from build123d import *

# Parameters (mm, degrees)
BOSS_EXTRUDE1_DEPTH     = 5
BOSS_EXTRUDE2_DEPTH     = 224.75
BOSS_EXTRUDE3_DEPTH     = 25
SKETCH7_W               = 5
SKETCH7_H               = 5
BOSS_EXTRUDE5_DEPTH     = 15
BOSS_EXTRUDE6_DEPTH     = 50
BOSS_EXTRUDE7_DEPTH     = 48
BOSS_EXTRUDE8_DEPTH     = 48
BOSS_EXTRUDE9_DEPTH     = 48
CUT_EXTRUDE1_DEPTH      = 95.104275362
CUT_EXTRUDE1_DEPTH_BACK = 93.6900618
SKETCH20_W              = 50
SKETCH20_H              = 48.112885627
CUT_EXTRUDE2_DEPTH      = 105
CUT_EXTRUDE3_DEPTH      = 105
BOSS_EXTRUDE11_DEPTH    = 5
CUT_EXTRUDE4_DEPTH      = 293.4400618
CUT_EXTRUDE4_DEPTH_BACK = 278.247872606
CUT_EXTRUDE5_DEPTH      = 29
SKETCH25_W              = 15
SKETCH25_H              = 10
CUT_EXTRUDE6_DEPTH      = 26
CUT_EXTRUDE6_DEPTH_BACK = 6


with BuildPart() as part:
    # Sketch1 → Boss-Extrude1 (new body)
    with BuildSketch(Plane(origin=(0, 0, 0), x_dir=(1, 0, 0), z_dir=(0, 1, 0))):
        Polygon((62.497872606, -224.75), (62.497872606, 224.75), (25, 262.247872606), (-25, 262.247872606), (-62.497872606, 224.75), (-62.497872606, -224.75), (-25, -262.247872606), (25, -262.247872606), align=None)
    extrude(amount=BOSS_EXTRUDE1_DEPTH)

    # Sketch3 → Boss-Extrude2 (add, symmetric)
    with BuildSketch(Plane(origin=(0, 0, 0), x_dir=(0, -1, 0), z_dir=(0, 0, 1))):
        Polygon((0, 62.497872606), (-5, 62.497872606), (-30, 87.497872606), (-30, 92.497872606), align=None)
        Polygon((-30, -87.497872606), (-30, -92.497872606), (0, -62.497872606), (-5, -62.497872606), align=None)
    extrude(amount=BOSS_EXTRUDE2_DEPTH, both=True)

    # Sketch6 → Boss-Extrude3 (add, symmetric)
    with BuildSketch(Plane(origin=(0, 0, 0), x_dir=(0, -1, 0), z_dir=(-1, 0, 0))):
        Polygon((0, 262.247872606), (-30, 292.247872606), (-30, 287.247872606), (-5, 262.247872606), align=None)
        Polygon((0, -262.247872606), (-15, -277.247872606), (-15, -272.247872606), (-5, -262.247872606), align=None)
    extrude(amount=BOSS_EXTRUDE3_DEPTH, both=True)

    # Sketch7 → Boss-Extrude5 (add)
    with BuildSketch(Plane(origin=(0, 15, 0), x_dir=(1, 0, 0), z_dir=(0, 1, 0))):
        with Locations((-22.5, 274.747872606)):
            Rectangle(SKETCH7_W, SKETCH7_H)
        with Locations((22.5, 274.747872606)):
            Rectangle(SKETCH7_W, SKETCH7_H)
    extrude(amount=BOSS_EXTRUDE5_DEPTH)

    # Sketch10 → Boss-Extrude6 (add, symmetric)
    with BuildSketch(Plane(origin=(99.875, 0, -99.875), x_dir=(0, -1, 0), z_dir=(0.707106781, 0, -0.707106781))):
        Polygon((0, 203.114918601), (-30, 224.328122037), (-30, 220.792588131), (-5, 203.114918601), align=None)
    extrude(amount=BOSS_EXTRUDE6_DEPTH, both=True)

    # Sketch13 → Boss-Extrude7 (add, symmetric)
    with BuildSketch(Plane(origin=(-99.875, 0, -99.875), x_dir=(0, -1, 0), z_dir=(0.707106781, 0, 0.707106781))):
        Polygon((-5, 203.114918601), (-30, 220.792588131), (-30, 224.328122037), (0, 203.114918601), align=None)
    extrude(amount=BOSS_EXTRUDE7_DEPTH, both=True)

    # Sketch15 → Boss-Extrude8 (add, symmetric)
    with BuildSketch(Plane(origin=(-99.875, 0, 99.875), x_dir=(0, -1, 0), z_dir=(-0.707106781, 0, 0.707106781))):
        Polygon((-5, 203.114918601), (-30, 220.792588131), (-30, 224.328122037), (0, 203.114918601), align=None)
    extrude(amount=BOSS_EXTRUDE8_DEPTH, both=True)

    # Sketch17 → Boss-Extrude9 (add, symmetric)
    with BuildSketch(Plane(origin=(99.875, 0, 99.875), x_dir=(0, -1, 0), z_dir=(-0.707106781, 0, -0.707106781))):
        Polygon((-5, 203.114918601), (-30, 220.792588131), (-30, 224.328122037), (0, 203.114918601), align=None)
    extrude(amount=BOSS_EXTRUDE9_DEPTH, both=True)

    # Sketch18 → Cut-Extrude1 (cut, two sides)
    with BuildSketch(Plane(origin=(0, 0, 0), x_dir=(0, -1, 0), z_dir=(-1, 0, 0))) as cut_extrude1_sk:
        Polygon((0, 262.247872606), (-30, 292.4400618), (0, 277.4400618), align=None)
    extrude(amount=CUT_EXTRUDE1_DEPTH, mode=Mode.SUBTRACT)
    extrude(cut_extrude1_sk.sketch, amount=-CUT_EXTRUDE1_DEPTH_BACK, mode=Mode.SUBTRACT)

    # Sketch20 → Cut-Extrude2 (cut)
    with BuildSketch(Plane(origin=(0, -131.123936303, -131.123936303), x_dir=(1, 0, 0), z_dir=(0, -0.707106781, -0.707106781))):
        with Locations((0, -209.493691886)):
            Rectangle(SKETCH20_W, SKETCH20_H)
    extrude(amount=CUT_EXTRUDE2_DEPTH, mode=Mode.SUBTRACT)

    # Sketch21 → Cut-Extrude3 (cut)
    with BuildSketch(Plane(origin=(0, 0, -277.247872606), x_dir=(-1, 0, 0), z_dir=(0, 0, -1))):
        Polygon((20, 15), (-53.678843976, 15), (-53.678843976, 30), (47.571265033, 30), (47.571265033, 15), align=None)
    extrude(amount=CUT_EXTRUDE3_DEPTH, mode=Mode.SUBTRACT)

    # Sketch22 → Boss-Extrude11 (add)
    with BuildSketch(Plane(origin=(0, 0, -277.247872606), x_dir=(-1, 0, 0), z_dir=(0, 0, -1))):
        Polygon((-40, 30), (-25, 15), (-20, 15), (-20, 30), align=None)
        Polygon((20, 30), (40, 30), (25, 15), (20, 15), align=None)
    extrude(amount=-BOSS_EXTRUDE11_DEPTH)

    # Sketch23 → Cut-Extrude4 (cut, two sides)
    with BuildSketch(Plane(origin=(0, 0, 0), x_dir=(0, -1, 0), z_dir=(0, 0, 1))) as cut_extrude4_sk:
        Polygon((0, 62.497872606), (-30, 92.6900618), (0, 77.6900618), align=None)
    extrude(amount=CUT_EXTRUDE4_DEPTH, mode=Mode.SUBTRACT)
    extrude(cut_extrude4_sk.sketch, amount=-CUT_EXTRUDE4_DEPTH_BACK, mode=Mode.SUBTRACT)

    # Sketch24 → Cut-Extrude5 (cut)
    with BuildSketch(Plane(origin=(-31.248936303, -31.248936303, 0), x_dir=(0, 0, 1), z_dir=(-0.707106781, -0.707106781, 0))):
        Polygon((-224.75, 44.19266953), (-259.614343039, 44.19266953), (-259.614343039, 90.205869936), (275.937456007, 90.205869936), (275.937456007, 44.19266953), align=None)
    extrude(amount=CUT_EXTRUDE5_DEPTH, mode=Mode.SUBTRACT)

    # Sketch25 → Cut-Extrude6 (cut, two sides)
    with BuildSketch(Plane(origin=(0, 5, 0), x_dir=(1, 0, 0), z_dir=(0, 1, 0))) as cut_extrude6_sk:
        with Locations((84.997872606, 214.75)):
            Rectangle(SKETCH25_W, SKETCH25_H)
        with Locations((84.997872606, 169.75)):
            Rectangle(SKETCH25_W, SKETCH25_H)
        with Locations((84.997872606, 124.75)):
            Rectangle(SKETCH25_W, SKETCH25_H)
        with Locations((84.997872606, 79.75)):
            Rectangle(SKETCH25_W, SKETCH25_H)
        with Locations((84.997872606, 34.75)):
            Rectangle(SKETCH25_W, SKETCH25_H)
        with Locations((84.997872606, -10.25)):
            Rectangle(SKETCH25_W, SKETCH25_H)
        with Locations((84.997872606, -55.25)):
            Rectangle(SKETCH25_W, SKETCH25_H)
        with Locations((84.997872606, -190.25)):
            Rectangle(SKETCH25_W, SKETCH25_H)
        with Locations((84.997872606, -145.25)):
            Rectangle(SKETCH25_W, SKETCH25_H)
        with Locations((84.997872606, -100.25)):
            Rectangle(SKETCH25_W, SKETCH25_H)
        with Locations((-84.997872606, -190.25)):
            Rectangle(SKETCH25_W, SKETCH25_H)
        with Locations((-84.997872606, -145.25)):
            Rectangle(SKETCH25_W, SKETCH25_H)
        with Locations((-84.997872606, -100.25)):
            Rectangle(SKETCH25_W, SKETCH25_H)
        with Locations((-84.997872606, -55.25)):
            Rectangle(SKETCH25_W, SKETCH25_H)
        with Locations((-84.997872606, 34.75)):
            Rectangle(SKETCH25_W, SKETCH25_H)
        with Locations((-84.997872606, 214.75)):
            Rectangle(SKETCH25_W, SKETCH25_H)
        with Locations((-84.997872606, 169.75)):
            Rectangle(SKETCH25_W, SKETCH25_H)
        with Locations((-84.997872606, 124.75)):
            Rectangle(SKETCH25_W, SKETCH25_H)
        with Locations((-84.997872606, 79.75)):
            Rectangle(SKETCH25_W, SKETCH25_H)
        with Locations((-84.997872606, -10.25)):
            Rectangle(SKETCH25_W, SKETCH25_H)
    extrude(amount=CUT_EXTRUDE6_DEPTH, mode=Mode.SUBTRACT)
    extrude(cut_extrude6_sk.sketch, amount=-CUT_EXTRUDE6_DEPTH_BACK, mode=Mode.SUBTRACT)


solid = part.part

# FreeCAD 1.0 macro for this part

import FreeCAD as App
import Part
import Sketcher
from FreeCAD import Vector
Q = App.Units.Quantity

doc = App.newDocument("Part")
body = doc.addObject("PartDesign::Body", "Body")

sketch1 = body.newObject("Sketcher::SketchObject", "Sketch")
sketch1.AttachmentSupport = (doc.getObject("XZ_Plane"), [""])
sketch1.MapMode = "FlatFace"
sketch1.addGeometry([
    Part.LineSegment(Vector(62, 225, 0), Vector(62, -225, 0)),
    Part.LineSegment(Vector(62, -225, 0), Vector(25, -262, 0)),
    Part.LineSegment(Vector(25, -262, 0), Vector(-25, -262, 0)),
    Part.LineSegment(Vector(-25, -262, 0), Vector(-62, -225, 0)),
    Part.LineSegment(Vector(-62, -225, 0), Vector(-62, 225, 0)),
    Part.LineSegment(Vector(-62, 225, 0), Vector(-25, 262, 0)),
    Part.LineSegment(Vector(-25, 262, 0), Vector(25, 262, 0)),
    Part.LineSegment(Vector(25, 262, 0), Vector(62, 225, 0)),
], False)
sketch1.addConstraint([
    Sketcher.Constraint("Coincident", 0, 2, 1, 1),
    Sketcher.Constraint("Coincident", 1, 2, 2, 1),
    Sketcher.Constraint("Coincident", 2, 2, 3, 1),
    Sketcher.Constraint("Coincident", 3, 2, 4, 1),
    Sketcher.Constraint("Coincident", 4, 2, 5, 1),
    Sketcher.Constraint("Coincident", 5, 2, 6, 1),
    Sketcher.Constraint("Coincident", 6, 2, 7, 1),
    Sketcher.Constraint("Coincident", 7, 2, 0, 1),
    Sketcher.Constraint("Vertical", 0),
    Sketcher.Constraint("Horizontal", 2),
    Sketcher.Constraint("Vertical", 4),
    Sketcher.Constraint("Horizontal", 6),
    Sketcher.Constraint("Symmetric", 0, 2, 4, 2, -1, 1),
    Sketcher.Constraint("Symmetric", 1, 2, 5, 2, -1, 1),
    Sketcher.Constraint("Perpendicular", 1, 3),
    Sketcher.Constraint("Perpendicular", 5, 7),
    Sketcher.Constraint("Horizontal", 0, 2, 3, 2),
    Sketcher.Constraint("Horizontal", 4, 2, 7, 2),
    Sketcher.Constraint("Vertical", 2, 2, 5, 2),
    Sketcher.Constraint("DistanceX", 2, 2, 2, 1, Q("50 mm")),
    Sketcher.Constraint("DistanceY", 0, 2, 0, 1, Q("449.5 mm")),
    Sketcher.Constraint("Distance", 1, Q("53.03 mm")),
])
pad1 = body.newObject("PartDesign::Pad", "Pad")
pad1.Profile = sketch1
pad1.Length = 5
pad1.Reversed = True

sketch2 = body.newObject("Sketcher::SketchObject", "Sketch001")
sketch2.AttachmentSupport = (doc.getObject("XY_Plane"), [""])
sketch2.MapMode = "FlatFace"
sketch2.addGeometry([
    Part.LineSegment(Vector(62, 5, 0), Vector(62, 0, 0)),
    Part.LineSegment(Vector(62, 0, 0), Vector(92, 30, 0)),
    Part.LineSegment(Vector(92, 30, 0), Vector(87, 30, 0)),
    Part.LineSegment(Vector(87, 30, 0), Vector(62, 5, 0)),
    Part.LineSegment(Vector(-87, 30, 0), Vector(-92, 30, 0)),
    Part.LineSegment(Vector(-92, 30, 0), Vector(-62, 0, 0)),
    Part.LineSegment(Vector(-62, 0, 0), Vector(-62, 5, 0)),
    Part.LineSegment(Vector(-62, 5, 0), Vector(-87, 30, 0)),
], False)
sketch2.addConstraint([
    Sketcher.Constraint("Coincident", 0, 2, 1, 1),
    Sketcher.Constraint("Coincident", 1, 2, 2, 1),
    Sketcher.Constraint("Coincident", 2, 2, 3, 1),
    Sketcher.Constraint("Coincident", 3, 2, 0, 1),
    Sketcher.Constraint("Coincident", 4, 2, 5, 1),
    Sketcher.Constraint("Coincident", 5, 2, 6, 1),
    Sketcher.Constraint("Coincident", 6, 2, 7, 1),
    Sketcher.Constraint("Coincident", 7, 2, 4, 1),
    Sketcher.Constraint("Vertical", 0),
    Sketcher.Constraint("Horizontal", 2),
    Sketcher.Constraint("Horizontal", 4),
    Sketcher.Constraint("Vertical", 6),
    Sketcher.Constraint("Symmetric", 0, 2, 5, 2, -1, 1),
    Sketcher.Constraint("Symmetric", 1, 2, 4, 2, -2),
    Sketcher.Constraint("PointOnObject", 0, 2, -1),
    Sketcher.Constraint("Parallel", 1, 3),
    Sketcher.Constraint("Perpendicular", 3, 5),
    Sketcher.Constraint("Parallel", 5, 7),
    Sketcher.Constraint("Horizontal", 3, 2, 6, 2),
    Sketcher.Constraint("DistanceX", 2, 2, 2, 1, Q("5 mm")),
    Sketcher.Constraint("DistanceY", -1, 1, 1, 2, Q("30 mm")),
    Sketcher.Constraint("DistanceX", -1, 1, 0, 2, Q("62.497873 mm")),
])
pad2 = body.newObject("PartDesign::Pad", "Pad001")
pad2.Profile = sketch2
pad2.Length = 449.5
pad2.Midplane = True

sketch3 = body.newObject("Sketcher::SketchObject", "Sketch002")
sketch3.AttachmentSupport = (doc.getObject("YZ_Plane"), [""])
sketch3.MapMode = "FlatFace"
sketch3.addGeometry([
    Part.LineSegment(Vector(0, 262, 0), Vector(30, 292, 0)),
    Part.LineSegment(Vector(30, 292, 0), Vector(30, 287, 0)),
    Part.LineSegment(Vector(30, 287, 0), Vector(5, 262, 0)),
    Part.LineSegment(Vector(5, 262, 0), Vector(0, 262, 0)),
    Part.LineSegment(Vector(15, -277, 0), Vector(0, -262, 0)),
    Part.LineSegment(Vector(0, -262, 0), Vector(5, -262, 0)),
    Part.LineSegment(Vector(5, -262, 0), Vector(15, -272, 0)),
    Part.LineSegment(Vector(15, -272, 0), Vector(15, -277, 0)),
], False)
sketch3.addConstraint([
    Sketcher.Constraint("Coincident", 0, 2, 1, 1),
    Sketcher.Constraint("Coincident", 1, 2, 2, 1),
    Sketcher.Constraint("Coincident", 2, 2, 3, 1),
    Sketcher.Constraint("Coincident", 3, 2, 0, 1),
    Sketcher.Constraint("Coincident", 4, 2, 5, 1),
    Sketcher.Constraint("Coincident", 5, 2, 6, 1),
    Sketcher.Constraint("Coincident", 6, 2, 7, 1),
    Sketcher.Constraint("Coincident", 7, 2, 4, 1),
    Sketcher.Constraint("Vertical", 1),
    Sketcher.Constraint("Horizontal", 3),
    Sketcher.Constraint("Horizontal", 5),
    Sketcher.Constraint("Vertical", 7),
    Sketcher.Constraint("Symmetric", 3, 2, 4, 2, -1, 1),
    Sketcher.Constraint("PointOnObject", 3, 2, -2),
    Sketcher.Constraint("Parallel", 0, 2),
    Sketcher.Constraint("Perpendicular", 2, 4),
    Sketcher.Constraint("Parallel", 4, 6),
    Sketcher.Constraint("Vertical", 2, 2, 5, 2),
    Sketcher.Constraint("Equal", 5, 1),
    Sketcher.Constraint("DistanceX", 3, 2, 3, 1, Q("5 mm")),
    Sketcher.Constraint("DistanceX", -1, 1, 0, 2, Q("30 mm")),
    Sketcher.Constraint("DistanceX", -1, 1, 6, 2, Q("15 mm")),
    Sketcher.Constraint("DistanceY", -1, 1, 0, 2, Q("292.247873 mm")),
])
pad3 = body.newObject("PartDesign::Pad", "Pad002")
pad3.Profile = sketch3
pad3.Length = 50
pad3.Midplane = True

sketch4 = body.newObject("Sketcher::SketchObject", "Sketch003")
sketch4.AttachmentSupport = (doc.getObject("XZ_Plane"), [""])
sketch4.MapMode = "FlatFace"
sketch4.AttachmentOffset = App.Placement(Vector(0, 0, -15), App.Rotation())
sketch4.addGeometry([
    Part.LineSegment(Vector(-25, -277, 0), Vector(-25, -272, 0)),
    Part.LineSegment(Vector(-25, -272, 0), Vector(-20, -272, 0)),
    Part.LineSegment(Vector(-20, -272, 0), Vector(-20, -277, 0)),
    Part.LineSegment(Vector(-20, -277, 0), Vector(-25, -277, 0)),
    Part.LineSegment(Vector(20, -277, 0), Vector(20, -272, 0)),
    Part.LineSegment(Vector(20, -272, 0), Vector(25, -272, 0)),
    Part.LineSegment(Vector(25, -272, 0), Vector(25, -277, 0)),
    Part.LineSegment(Vector(25, -277, 0), Vector(20, -277, 0)),
], False)
sketch4.addConstraint([
    Sketcher.Constraint("Coincident", 0, 2, 1, 1),
    Sketcher.Constraint("Coincident", 1, 2, 2, 1),
    Sketcher.Constraint("Coincident", 2, 2, 3, 1),
    Sketcher.Constraint("Coincident", 3, 2, 0, 1),
    Sketcher.Constraint("Coincident", 4, 2, 5, 1),
    Sketcher.Constraint("Coincident", 5, 2, 6, 1),
    Sketcher.Constraint("Coincident", 6, 2, 7, 1),
    Sketcher.Constraint("Coincident", 7, 2, 4, 1),
    Sketcher.Constraint("Vertical", 0),
    Sketcher.Constraint("Horizontal", 1),
    Sketcher.Constraint("Vertical", 2),
    Sketcher.Constraint("Horizontal", 3),
    Sketcher.Constraint("Vertical", 4),
    Sketcher.Constraint("Horizontal", 5),
    Sketcher.Constraint("Vertical", 6),
    Sketcher.Constraint("Horizontal", 7),
    Sketcher.Constraint("Symmetric", 1, 2, 4, 2, -2),
    Sketcher.Constraint("Symmetric", 3, 2, 6, 2, -2),
    Sketcher.Constraint("Equal", 7, 0),
    Sketcher.Constraint("DistanceX", 1, 1, 1, 2, Q("5 mm")),
    Sketcher.Constraint("DistanceX", 0, 2, -1, 1, Q("25 mm")),
    Sketcher.Constraint("DistanceY", 0, 2, -1, 1, Q("272.247873 mm")),
])
pad4 = body.newObject("PartDesign::Pad", "Pad003")
pad4.Profile = sketch4
pad4.Length = 15
pad4.Reversed = True

sketch5 = body.newObject("Sketcher::SketchObject", "Sketch004")
sketch5.Placement = App.Placement(Vector(99.875, 0, -99.875), App.Rotation(Vector(0, -1, 0), Vector(-0.707106781, 0, -0.707106781), Vector(0.707106781, 0, -0.707106781), "ZXY"))
sketch5.addGeometry([
    Part.LineSegment(Vector(0, 203.1, 0), Vector(-30, 224.3, 0)),
    Part.LineSegment(Vector(-30, 224.3, 0), Vector(-30, 220.8, 0)),
    Part.LineSegment(Vector(-30, 220.8, 0), Vector(-5, 203.1, 0)),
    Part.LineSegment(Vector(-5, 203.1, 0), Vector(0, 203.1, 0)),
], False)
sketch5.addConstraint([
    Sketcher.Constraint("Coincident", 0, 2, 1, 1),
    Sketcher.Constraint("Coincident", 1, 2, 2, 1),
    Sketcher.Constraint("Coincident", 2, 2, 3, 1),
    Sketcher.Constraint("Coincident", 3, 2, 0, 1),
    Sketcher.Constraint("Vertical", 1),
    Sketcher.Constraint("Horizontal", 3),
    Sketcher.Constraint("PointOnObject", 3, 2, -2),
    Sketcher.Constraint("Parallel", 0, 2),
    Sketcher.Constraint("DistanceX", 3, 1, 3, 2, Q("5 mm")),
    Sketcher.Constraint("DistanceX", 0, 2, -1, 1, Q("30 mm")),
    Sketcher.Constraint("Distance", 2, Q("30.618622 mm")),
    Sketcher.Constraint("DistanceY", -1, 1, 0, 2, Q("224.328122 mm")),
])
pad5 = body.newObject("PartDesign::Pad", "Pad004")
pad5.Profile = sketch5
pad5.Length = 100
pad5.Midplane = True

sketch6 = body.newObject("Sketcher::SketchObject", "Sketch005")
sketch6.Placement = App.Placement(Vector(-99.875, 0, -99.875), App.Rotation(Vector(0, -1, 0), Vector(0.707106781, 0, -0.707106781), Vector(0.707106781, 0, 0.707106781), "ZXY"))
sketch6.addGeometry([
    Part.LineSegment(Vector(-30, 220.8, 0), Vector(-5, 203.1, 0)),
    Part.LineSegment(Vector(-5, 203.1, 0), Vector(0, 203.1, 0)),
    Part.LineSegment(Vector(0, 203.1, 0), Vector(-30, 224.3, 0)),
    Part.LineSegment(Vector(-30, 224.3, 0), Vector(-30, 220.8, 0)),
], False)
sketch6.addConstraint([
    Sketcher.Constraint("Coincident", 0, 2, 1, 1),
    Sketcher.Constraint("Coincident", 1, 2, 2, 1),
    Sketcher.Constraint("Coincident", 2, 2, 3, 1),
    Sketcher.Constraint("Coincident", 3, 2, 0, 1),
    Sketcher.Constraint("Horizontal", 1),
    Sketcher.Constraint("Vertical", 3),
    Sketcher.Constraint("PointOnObject", 1, 2, -2),
    Sketcher.Constraint("Parallel", 0, 2),
    Sketcher.Constraint("DistanceX", 1, 1, 1, 2, Q("5 mm")),
    Sketcher.Constraint("DistanceX", 2, 2, -1, 1, Q("30 mm")),
    Sketcher.Constraint("Distance", 0, Q("30.618622 mm")),
    Sketcher.Constraint("DistanceY", -1, 1, 0, 2, Q("203.114918 mm")),
])
pad6 = body.newObject("PartDesign::Pad", "Pad005")
pad6.Profile = sketch6
pad6.Length = 96
pad6.Midplane = True

sketch7 = body.newObject("Sketcher::SketchObject", "Sketch006")
sketch7.Placement = App.Placement(Vector(-99.875, 0, 99.875), App.Rotation(Vector(0, -1, 0), Vector(0.707106781, 0, 0.707106781), Vector(-0.707106781, 0, 0.707106781), "ZXY"))
sketch7.addGeometry([
    Part.LineSegment(Vector(-30, 220.8, 0), Vector(-5, 203.1, 0)),
    Part.LineSegment(Vector(-5, 203.1, 0), Vector(0, 203.1, 0)),
    Part.LineSegment(Vector(0, 203.1, 0), Vector(-30, 224.3, 0)),
    Part.LineSegment(Vector(-30, 224.3, 0), Vector(-30, 220.8, 0)),
], False)
sketch7.addConstraint([
    Sketcher.Constraint("Coincident", 0, 2, 1, 1),
    Sketcher.Constraint("Coincident", 1, 2, 2, 1),
    Sketcher.Constraint("Coincident", 2, 2, 3, 1),
    Sketcher.Constraint("Coincident", 3, 2, 0, 1),
    Sketcher.Constraint("Horizontal", 1),
    Sketcher.Constraint("Vertical", 3),
    Sketcher.Constraint("PointOnObject", 1, 2, -2),
    Sketcher.Constraint("Parallel", 0, 2),
    Sketcher.Constraint("DistanceX", 1, 1, 1, 2, Q("5 mm")),
    Sketcher.Constraint("DistanceX", 2, 2, -1, 1, Q("30 mm")),
    Sketcher.Constraint("Distance", 0, Q("30.618622 mm")),
    Sketcher.Constraint("DistanceY", -1, 1, 0, 2, Q("203.114918 mm")),
])
pad7 = body.newObject("PartDesign::Pad", "Pad006")
pad7.Profile = sketch7
pad7.Length = 96
pad7.Midplane = True

sketch8 = body.newObject("Sketcher::SketchObject", "Sketch007")
sketch8.Placement = App.Placement(Vector(99.875, 0, 99.875), App.Rotation(Vector(0, -1, 0), Vector(-0.707106781, 0, 0.707106781), Vector(-0.707106781, 0, -0.707106781), "ZXY"))
sketch8.addGeometry([
    Part.LineSegment(Vector(-30, 220.8, 0), Vector(-5, 203.1, 0)),
    Part.LineSegment(Vector(-5, 203.1, 0), Vector(0, 203.1, 0)),
    Part.LineSegment(Vector(0, 203.1, 0), Vector(-30, 224.3, 0)),
    Part.LineSegment(Vector(-30, 224.3, 0), Vector(-30, 220.8, 0)),
], False)
sketch8.addConstraint([
    Sketcher.Constraint("Coincident", 0, 2, 1, 1),
    Sketcher.Constraint("Coincident", 1, 2, 2, 1),
    Sketcher.Constraint("Coincident", 2, 2, 3, 1),
    Sketcher.Constraint("Coincident", 3, 2, 0, 1),
    Sketcher.Constraint("Horizontal", 1),
    Sketcher.Constraint("Vertical", 3),
    Sketcher.Constraint("PointOnObject", 1, 2, -2),
    Sketcher.Constraint("Parallel", 0, 2),
    Sketcher.Constraint("DistanceX", 1, 1, 1, 2, Q("5 mm")),
    Sketcher.Constraint("DistanceX", 2, 2, -1, 1, Q("30 mm")),
    Sketcher.Constraint("Distance", 0, Q("30.618622 mm")),
    Sketcher.Constraint("DistanceY", -1, 1, 0, 2, Q("203.114918 mm")),
])
pad8 = body.newObject("PartDesign::Pad", "Pad007")
pad8.Profile = sketch8
pad8.Length = 96
pad8.Midplane = True

sketch9 = body.newObject("Sketcher::SketchObject", "Sketch008")
sketch9.AttachmentSupport = (doc.getObject("YZ_Plane"), [""])
sketch9.MapMode = "FlatFace"
sketch9.addGeometry([
    Part.LineSegment(Vector(30, 292, 0), Vector(0, 262, 0)),
    Part.LineSegment(Vector(0, 262, 0), Vector(0, 277, 0)),
    Part.LineSegment(Vector(0, 277, 0), Vector(30, 292, 0)),
], False)
sketch9.addConstraint([
    Sketcher.Constraint("Coincident", 0, 2, 1, 1),
    Sketcher.Constraint("Coincident", 1, 2, 2, 1),
    Sketcher.Constraint("Coincident", 2, 2, 0, 1),
    Sketcher.Constraint("Vertical", 1),
    Sketcher.Constraint("PointOnObject", 0, 2, -2),
    Sketcher.Constraint("DistanceX", -1, 1, 2, 2, Q("30 mm")),
    Sketcher.Constraint("DistanceY", 1, 2, 2, 2, Q("15 mm")),
    Sketcher.Constraint("DistanceY", 1, 1, 1, 2, Q("15.192189 mm")),
    Sketcher.Constraint("DistanceY", -1, 1, 1, 2, Q("277.440062 mm")),
])
pocket1 = body.newObject("PartDesign::Pocket", "Pocket")
pocket1.Profile = sketch9
pocket1.Type = "ThroughAll"
pocket1.Midplane = True

sketch10 = body.newObject("Sketcher::SketchObject", "Sketch009")
sketch10.Placement = App.Placement(Vector(0, -131.123936, -131.123936), App.Rotation(Vector(1, 0, 0), Vector(0, -0.707106781, 0.707106781), Vector(0, -0.707106781, -0.707106781), "ZXY"))
sketch10.addGeometry([
    Part.LineSegment(Vector(-25, -185, 0), Vector(-25, -234, 0)),
    Part.LineSegment(Vector(-25, -234, 0), Vector(25, -234, 0)),
    Part.LineSegment(Vector(25, -234, 0), Vector(25, -185, 0)),
    Part.LineSegment(Vector(25, -185, 0), Vector(-25, -185, 0)),
], False)
sketch10.addConstraint([
    Sketcher.Constraint("Coincident", 0, 2, 1, 1),
    Sketcher.Constraint("Coincident", 1, 2, 2, 1),
    Sketcher.Constraint("Coincident", 2, 2, 3, 1),
    Sketcher.Constraint("Coincident", 3, 2, 0, 1),
    Sketcher.Constraint("Vertical", 0),
    Sketcher.Constraint("Horizontal", 1),
    Sketcher.Constraint("Vertical", 2),
    Sketcher.Constraint("Horizontal", 3),
    Sketcher.Constraint("DistanceX", 1, 1, 1, 2, Q("50 mm")),
    Sketcher.Constraint("DistanceX", 0, 2, -1, 1, Q("25 mm")),
    Sketcher.Constraint("DistanceY", 0, 2, 0, 1, Q("48.112886 mm")),
    Sketcher.Constraint("DistanceY", 2, 2, -1, 1, Q("185.437249 mm")),
])
pocket2 = body.newObject("PartDesign::Pocket", "Pocket001")
pocket2.Profile = sketch10
pocket2.Length = 105
pocket2.Reversed = True

sketch11 = body.newObject("Sketcher::SketchObject", "Sketch010")
sketch11.AttachmentSupport = (doc.getObject("XY_Plane"), [""])
sketch11.MapMode = "FlatFace"
sketch11.AttachmentOffset = App.Placement(Vector(0, 0, -277.247873), App.Rotation())
sketch11.addGeometry([
    Part.LineSegment(Vector(54, 15, 0), Vector(-48, 15, 0)),
    Part.LineSegment(Vector(-48, 15, 0), Vector(-48, 30, 0)),
    Part.LineSegment(Vector(-48, 30, 0), Vector(54, 30, 0)),
    Part.LineSegment(Vector(54, 30, 0), Vector(54, 15, 0)),
], False)
sketch11.addConstraint([
    Sketcher.Constraint("Coincident", 0, 2, 1, 1),
    Sketcher.Constraint("Coincident", 1, 2, 2, 1),
    Sketcher.Constraint("Coincident", 2, 2, 3, 1),
    Sketcher.Constraint("Coincident", 3, 2, 0, 1),
    Sketcher.Constraint("Horizontal", 0),
    Sketcher.Constraint("Vertical", 1),
    Sketcher.Constraint("Horizontal", 2),
    Sketcher.Constraint("Vertical", 3),
    Sketcher.Constraint("DistanceY", 1, 1, 1, 2, Q("15 mm")),
    Sketcher.Constraint("DistanceY", -1, 1, 0, 2, Q("15 mm")),
    Sketcher.Constraint("DistanceX", 0, 2, 0, 1, Q("101.250109 mm")),
    Sketcher.Constraint("DistanceX", 0, 2, -1, 1, Q("47.571265 mm")),
])
pocket3 = body.newObject("PartDesign::Pocket", "Pocket002")
pocket3.Profile = sketch11
pocket3.Length = 105

sketch12 = body.newObject("Sketcher::SketchObject", "Sketch011")
sketch12.AttachmentSupport = (doc.getObject("XY_Plane"), [""])
sketch12.MapMode = "FlatFace"
sketch12.AttachmentOffset = App.Placement(Vector(0, 0, -277.247873), App.Rotation())
sketch12.addGeometry([
    Part.LineSegment(Vector(40, 30, 0), Vector(25, 15, 0)),
    Part.LineSegment(Vector(25, 15, 0), Vector(20, 15, 0)),
    Part.LineSegment(Vector(20, 15, 0), Vector(20, 30, 0)),
    Part.LineSegment(Vector(20, 30, 0), Vector(40, 30, 0)),
    Part.LineSegment(Vector(-40, 30, 0), Vector(-20, 30, 0)),
    Part.LineSegment(Vector(-20, 30, 0), Vector(-20, 15, 0)),
    Part.LineSegment(Vector(-20, 15, 0), Vector(-25, 15, 0)),
    Part.LineSegment(Vector(-25, 15, 0), Vector(-40, 30, 0)),
], False)
sketch12.addConstraint([
    Sketcher.Constraint("Coincident", 0, 2, 1, 1),
    Sketcher.Constraint("Coincident", 1, 2, 2, 1),
    Sketcher.Constraint("Coincident", 2, 2, 3, 1),
    Sketcher.Constraint("Coincident", 3, 2, 0, 1),
    Sketcher.Constraint("Coincident", 4, 2, 5, 1),
    Sketcher.Constraint("Coincident", 5, 2, 6, 1),
    Sketcher.Constraint("Coincident", 6, 2, 7, 1),
    Sketcher.Constraint("Coincident", 7, 2, 4, 1),
    Sketcher.Constraint("Horizontal", 1),
    Sketcher.Constraint("Vertical", 2),
    Sketcher.Constraint("Horizontal", 3),
    Sketcher.Constraint("Horizontal", 4),
    Sketcher.Constraint("Vertical", 5),
    Sketcher.Constraint("Horizontal", 6),
    Sketcher.Constraint("Symmetric", 2, 2, 4, 2, -2),
    Sketcher.Constraint("Symmetric", 0, 2, 6, 2, -2),
    Sketcher.Constraint("Perpendicular", 0, 7),
    Sketcher.Constraint("Equal", 3, 4),
    Sketcher.Constraint("DistanceX", 1, 2, 1, 1, Q("5 mm")),
    Sketcher.Constraint("DistanceX", 3, 1, 3, 2, Q("20 mm")),
    Sketcher.Constraint("DistanceX", -1, 1, 0, 2, Q("25 mm")),
    Sketcher.Constraint("DistanceY", -1, 1, 0, 2, Q("15 mm")),
])
pad9 = body.newObject("PartDesign::Pad", "Pad008")
pad9.Profile = sketch12
pad9.Length = 5

sketch13 = body.newObject("Sketcher::SketchObject", "Sketch012")
sketch13.AttachmentSupport = (doc.getObject("XY_Plane"), [""])
sketch13.MapMode = "FlatFace"
sketch13.addGeometry([
    Part.LineSegment(Vector(93, 30, 0), Vector(62, 0, 0)),
    Part.LineSegment(Vector(62, 0, 0), Vector(78, 0, 0)),
    Part.LineSegment(Vector(78, 0, 0), Vector(93, 30, 0)),
], False)
sketch13.addConstraint([
    Sketcher.Constraint("Coincident", 0, 2, 1, 1),
    Sketcher.Constraint("Coincident", 1, 2, 2, 1),
    Sketcher.Constraint("Coincident", 2, 2, 0, 1),
    Sketcher.Constraint("Horizontal", 1),
    Sketcher.Constraint("PointOnObject", 0, 2, -1),
    Sketcher.Constraint("DistanceY", -1, 1, 2, 2, Q("30 mm")),
    Sketcher.Constraint("DistanceX", 1, 2, 2, 2, Q("15 mm")),
    Sketcher.Constraint("DistanceX", 1, 1, 1, 2, Q("15.192189 mm")),
    Sketcher.Constraint("DistanceX", -1, 1, 1, 2, Q("77.690062 mm")),
])
pocket4 = body.newObject("PartDesign::Pocket", "Pocket003")
pocket4.Profile = sketch13
pocket4.Type = "ThroughAll"
pocket4.Midplane = True

sketch14 = body.newObject("Sketcher::SketchObject", "Sketch013")
sketch14.Placement = App.Placement(Vector(-31.248936, -31.248936, 0), App.Rotation(Vector(0, 0, 1), Vector(-0.707106781, 0.707106781, 0), Vector(-0.707106781, -0.707106781, 0), "ZXY"))
sketch14.addGeometry([
    Part.LineSegment(Vector(-260, 44, 0), Vector(276, 44, 0)),
    Part.LineSegment(Vector(276, 44, 0), Vector(276, 90, 0)),
    Part.LineSegment(Vector(276, 90, 0), Vector(-260, 90, 0)),
    Part.LineSegment(Vector(-260, 90, 0), Vector(-260, 44, 0)),
], False)
sketch14.addConstraint([
    Sketcher.Constraint("Coincident", 0, 2, 1, 1),
    Sketcher.Constraint("Coincident", 1, 2, 2, 1),
    Sketcher.Constraint("Coincident", 2, 2, 3, 1),
    Sketcher.Constraint("Coincident", 3, 2, 0, 1),
    Sketcher.Constraint("Horizontal", 0),
    Sketcher.Constraint("Vertical", 1),
    Sketcher.Constraint("Horizontal", 2),
    Sketcher.Constraint("Vertical", 3),
    Sketcher.Constraint("DistanceX", 0, 1, 0, 2, Q("535.551799 mm")),
    Sketcher.Constraint("DistanceY", 1, 1, 1, 2, Q("46.0132 mm")),
    Sketcher.Constraint("DistanceY", -1, 1, 0, 2, Q("44.19267 mm")),
    Sketcher.Constraint("DistanceX", -1, 1, 0, 2, Q("275.937456 mm")),
])
pocket5 = body.newObject("PartDesign::Pocket", "Pocket004")
pocket5.Profile = sketch14
pocket5.Length = 29
pocket5.Reversed = True

sketch15 = body.newObject("Sketcher::SketchObject", "Sketch014")
sketch15.AttachmentSupport = (doc.getObject("XZ_Plane"), [""])
sketch15.MapMode = "FlatFace"
sketch15.AttachmentOffset = App.Placement(Vector(0, 0, -5), App.Rotation())
sketch15.addGeometry([
    Part.LineSegment(Vector(77, -220, 0), Vector(77, -210, 0)),
    Part.LineSegment(Vector(77, -210, 0), Vector(92, -210, 0)),
    Part.LineSegment(Vector(92, -210, 0), Vector(92, -220, 0)),
    Part.LineSegment(Vector(92, -220, 0), Vector(77, -220, 0)),
    Part.LineSegment(Vector(77, -175, 0), Vector(77, -165, 0)),
    Part.LineSegment(Vector(77, -165, 0), Vector(92, -165, 0)),
    Part.LineSegment(Vector(92, -165, 0), Vector(92, -175, 0)),
    Part.LineSegment(Vector(92, -175, 0), Vector(77, -175, 0)),
    Part.LineSegment(Vector(77, -130, 0), Vector(77, -120, 0)),
    Part.LineSegment(Vector(77, -120, 0), Vector(92, -120, 0)),
    Part.LineSegment(Vector(92, -120, 0), Vector(92, -130, 0)),
    Part.LineSegment(Vector(92, -130, 0), Vector(77, -130, 0)),
    Part.LineSegment(Vector(77, -85, 0), Vector(77, -75, 0)),
    Part.LineSegment(Vector(77, -75, 0), Vector(92, -75, 0)),
    Part.LineSegment(Vector(92, -75, 0), Vector(92, -85, 0)),
    Part.LineSegment(Vector(92, -85, 0), Vector(77, -85, 0)),
    Part.LineSegment(Vector(77, -40, 0), Vector(77, -30, 0)),
    Part.LineSegment(Vector(77, -30, 0), Vector(92, -30, 0)),
    Part.LineSegment(Vector(92, -30, 0), Vector(92, -40, 0)),
    Part.LineSegment(Vector(92, -40, 0), Vector(77, -40, 0)),
    Part.LineSegment(Vector(77, 5, 0), Vector(77, 15, 0)),
    Part.LineSegment(Vector(77, 15, 0), Vector(92, 15, 0)),
    Part.LineSegment(Vector(92, 15, 0), Vector(92, 5, 0)),
    Part.LineSegment(Vector(92, 5, 0), Vector(77, 5, 0)),
    Part.LineSegment(Vector(77, 50, 0), Vector(77, 60, 0)),
    Part.LineSegment(Vector(77, 60, 0), Vector(92, 60, 0)),
    Part.LineSegment(Vector(92, 60, 0), Vector(92, 50, 0)),
    Part.LineSegment(Vector(92, 50, 0), Vector(77, 50, 0)),
    Part.LineSegment(Vector(77, 185, 0), Vector(77, 195, 0)),
    Part.LineSegment(Vector(77, 195, 0), Vector(92, 195, 0)),
    Part.LineSegment(Vector(92, 195, 0), Vector(92, 185, 0)),
    Part.LineSegment(Vector(92, 185, 0), Vector(77, 185, 0)),
    Part.LineSegment(Vector(77, 140, 0), Vector(77, 150, 0)),
    Part.LineSegment(Vector(77, 150, 0), Vector(92, 150, 0)),
    Part.LineSegment(Vector(92, 150, 0), Vector(92, 140, 0)),
    Part.LineSegment(Vector(92, 140, 0), Vector(77, 140, 0)),
    Part.LineSegment(Vector(77, 95, 0), Vector(77, 105, 0)),
    Part.LineSegment(Vector(77, 105, 0), Vector(92, 105, 0)),
    Part.LineSegment(Vector(92, 105, 0), Vector(92, 95, 0)),
    Part.LineSegment(Vector(92, 95, 0), Vector(77, 95, 0)),
    Part.LineSegment(Vector(-92, 185, 0), Vector(-92, 195, 0)),
    Part.LineSegment(Vector(-92, 195, 0), Vector(-77, 195, 0)),
    Part.LineSegment(Vector(-77, 195, 0), Vector(-77, 185, 0)),
    Part.LineSegment(Vector(-77, 185, 0), Vector(-92, 185, 0)),
    Part.LineSegment(Vector(-92, 140, 0), Vector(-92, 150, 0)),
    Part.LineSegment(Vector(-92, 150, 0), Vector(-77, 150, 0)),
    Part.LineSegment(Vector(-77, 150, 0), Vector(-77, 140, 0)),
    Part.LineSegment(Vector(-77, 140, 0), Vector(-92, 140, 0)),
    Part.LineSegment(Vector(-92, 95, 0), Vector(-92, 105, 0)),
    Part.LineSegment(Vector(-92, 105, 0), Vector(-77, 105, 0)),
    Part.LineSegment(Vector(-77, 105, 0), Vector(-77, 95, 0)),
    Part.LineSegment(Vector(-77, 95, 0), Vector(-92, 95, 0)),
    Part.LineSegment(Vector(-92, 50, 0), Vector(-92, 60, 0)),
    Part.LineSegment(Vector(-92, 60, 0), Vector(-77, 60, 0)),
    Part.LineSegment(Vector(-77, 60, 0), Vector(-77, 50, 0)),
    Part.LineSegment(Vector(-77, 50, 0), Vector(-92, 50, 0)),
    Part.LineSegment(Vector(-92, -40, 0), Vector(-92, -30, 0)),
    Part.LineSegment(Vector(-92, -30, 0), Vector(-77, -30, 0)),
    Part.LineSegment(Vector(-77, -30, 0), Vector(-77, -40, 0)),
    Part.LineSegment(Vector(-77, -40, 0), Vector(-92, -40, 0)),
    Part.LineSegment(Vector(-92, -220, 0), Vector(-92, -210, 0)),
    Part.LineSegment(Vector(-92, -210, 0), Vector(-77, -210, 0)),
    Part.LineSegment(Vector(-77, -210, 0), Vector(-77, -220, 0)),
    Part.LineSegment(Vector(-77, -220, 0), Vector(-92, -220, 0)),
    Part.LineSegment(Vector(-92, -175, 0), Vector(-92, -165, 0)),
    Part.LineSegment(Vector(-92, -165, 0), Vector(-77, -165, 0)),
    Part.LineSegment(Vector(-77, -165, 0), Vector(-77, -175, 0)),
    Part.LineSegment(Vector(-77, -175, 0), Vector(-92, -175, 0)),
    Part.LineSegment(Vector(-92, -130, 0), Vector(-92, -120, 0)),
    Part.LineSegment(Vector(-92, -120, 0), Vector(-77, -120, 0)),
    Part.LineSegment(Vector(-77, -120, 0), Vector(-77, -130, 0)),
    Part.LineSegment(Vector(-77, -130, 0), Vector(-92, -130, 0)),
    Part.LineSegment(Vector(-92, -85, 0), Vector(-92, -75, 0)),
    Part.LineSegment(Vector(-92, -75, 0), Vector(-77, -75, 0)),
    Part.LineSegment(Vector(-77, -75, 0), Vector(-77, -85, 0)),
    Part.LineSegment(Vector(-77, -85, 0), Vector(-92, -85, 0)),
    Part.LineSegment(Vector(-92, 5, 0), Vector(-92, 15, 0)),
    Part.LineSegment(Vector(-92, 15, 0), Vector(-77, 15, 0)),
    Part.LineSegment(Vector(-77, 15, 0), Vector(-77, 5, 0)),
    Part.LineSegment(Vector(-77, 5, 0), Vector(-92, 5, 0)),
], False)
sketch15.addConstraint([
    Sketcher.Constraint("Coincident", 0, 2, 1, 1),
    Sketcher.Constraint("Coincident", 1, 2, 2, 1),
    Sketcher.Constraint("Coincident", 2, 2, 3, 1),
    Sketcher.Constraint("Coincident", 3, 2, 0, 1),
    Sketcher.Constraint("Coincident", 4, 2, 5, 1),
    Sketcher.Constraint("Coincident", 5, 2, 6, 1),
    Sketcher.Constraint("Coincident", 6, 2, 7, 1),
    Sketcher.Constraint("Coincident", 7, 2, 4, 1),
    Sketcher.Constraint("Coincident", 8, 2, 9, 1),
    Sketcher.Constraint("Coincident", 9, 2, 10, 1),
    Sketcher.Constraint("Coincident", 10, 2, 11, 1),
    Sketcher.Constraint("Coincident", 11, 2, 8, 1),
    Sketcher.Constraint("Coincident", 12, 2, 13, 1),
    Sketcher.Constraint("Coincident", 13, 2, 14, 1),
    Sketcher.Constraint("Coincident", 14, 2, 15, 1),
    Sketcher.Constraint("Coincident", 15, 2, 12, 1),
    Sketcher.Constraint("Coincident", 16, 2, 17, 1),
    Sketcher.Constraint("Coincident", 17, 2, 18, 1),
    Sketcher.Constraint("Coincident", 18, 2, 19, 1),
    Sketcher.Constraint("Coincident", 19, 2, 16, 1),
    Sketcher.Constraint("Coincident", 20, 2, 21, 1),
    Sketcher.Constraint("Coincident", 21, 2, 22, 1),
    Sketcher.Constraint("Coincident", 22, 2, 23, 1),
    Sketcher.Constraint("Coincident", 23, 2, 20, 1),
    Sketcher.Constraint("Coincident", 24, 2, 25, 1),
    Sketcher.Constraint("Coincident", 25, 2, 26, 1),
    Sketcher.Constraint("Coincident", 26, 2, 27, 1),
    Sketcher.Constraint("Coincident", 27, 2, 24, 1),
    Sketcher.Constraint("Coincident", 28, 2, 29, 1),
    Sketcher.Constraint("Coincident", 29, 2, 30, 1),
    Sketcher.Constraint("Coincident", 30, 2, 31, 1),
    Sketcher.Constraint("Coincident", 31, 2, 28, 1),
    Sketcher.Constraint("Coincident", 32, 2, 33, 1),
    Sketcher.Constraint("Coincident", 33, 2, 34, 1),
    Sketcher.Constraint("Coincident", 34, 2, 35, 1),
    Sketcher.Constraint("Coincident", 35, 2, 32, 1),
    Sketcher.Constraint("Coincident", 36, 2, 37, 1),
    Sketcher.Constraint("Coincident", 37, 2, 38, 1),
    Sketcher.Constraint("Coincident", 38, 2, 39, 1),
    Sketcher.Constraint("Coincident", 39, 2, 36, 1),
    Sketcher.Constraint("Coincident", 40, 2, 41, 1),
    Sketcher.Constraint("Coincident", 41, 2, 42, 1),
    Sketcher.Constraint("Coincident", 42, 2, 43, 1),
    Sketcher.Constraint("Coincident", 43, 2, 40, 1),
    Sketcher.Constraint("Coincident", 44, 2, 45, 1),
    Sketcher.Constraint("Coincident", 45, 2, 46, 1),
    Sketcher.Constraint("Coincident", 46, 2, 47, 1),
    Sketcher.Constraint("Coincident", 47, 2, 44, 1),
    Sketcher.Constraint("Coincident", 48, 2, 49, 1),
    Sketcher.Constraint("Coincident", 49, 2, 50, 1),
    Sketcher.Constraint("Coincident", 50, 2, 51, 1),
    Sketcher.Constraint("Coincident", 51, 2, 48, 1),
    Sketcher.Constraint("Coincident", 52, 2, 53, 1),
    Sketcher.Constraint("Coincident", 53, 2, 54, 1),
    Sketcher.Constraint("Coincident", 54, 2, 55, 1),
    Sketcher.Constraint("Coincident", 55, 2, 52, 1),
    Sketcher.Constraint("Coincident", 56, 2, 57, 1),
    Sketcher.Constraint("Coincident", 57, 2, 58, 1),
    Sketcher.Constraint("Coincident", 58, 2, 59, 1),
    Sketcher.Constraint("Coincident", 59, 2, 56, 1),
    Sketcher.Constraint("Coincident", 60, 2, 61, 1),
    Sketcher.Constraint("Coincident", 61, 2, 62, 1),
    Sketcher.Constraint("Coincident", 62, 2, 63, 1),
    Sketcher.Constraint("Coincident", 63, 2, 60, 1),
    Sketcher.Constraint("Coincident", 64, 2, 65, 1),
    Sketcher.Constraint("Coincident", 65, 2, 66, 1),
    Sketcher.Constraint("Coincident", 66, 2, 67, 1),
    Sketcher.Constraint("Coincident", 67, 2, 64, 1),
    Sketcher.Constraint("Coincident", 68, 2, 69, 1),
    Sketcher.Constraint("Coincident", 69, 2, 70, 1),
    Sketcher.Constraint("Coincident", 70, 2, 71, 1),
    Sketcher.Constraint("Coincident", 71, 2, 68, 1),
    Sketcher.Constraint("Coincident", 72, 2, 73, 1),
    Sketcher.Constraint("Coincident", 73, 2, 74, 1),
    Sketcher.Constraint("Coincident", 74, 2, 75, 1),
    Sketcher.Constraint("Coincident", 75, 2, 72, 1),
    Sketcher.Constraint("Coincident", 76, 2, 77, 1),
    Sketcher.Constraint("Coincident", 77, 2, 78, 1),
    Sketcher.Constraint("Coincident", 78, 2, 79, 1),
    Sketcher.Constraint("Coincident", 79, 2, 76, 1),
    Sketcher.Constraint("Vertical", 0),
    Sketcher.Constraint("Horizontal", 1),
    Sketcher.Constraint("Vertical", 2),
    Sketcher.Constraint("Horizontal", 3),
    Sketcher.Constraint("Vertical", 4),
    Sketcher.Constraint("Horizontal", 5),
    Sketcher.Constraint("Vertical", 6),
    Sketcher.Constraint("Horizontal", 7),
    Sketcher.Constraint("Vertical", 8),
    Sketcher.Constraint("Horizontal", 9),
    Sketcher.Constraint("Vertical", 10),
    Sketcher.Constraint("Horizontal", 11),
    Sketcher.Constraint("Vertical", 12),
    Sketcher.Constraint("Horizontal", 13),
    Sketcher.Constraint("Vertical", 14),
    Sketcher.Constraint("Horizontal", 15),
    Sketcher.Constraint("Vertical", 16),
    Sketcher.Constraint("Horizontal", 17),
    Sketcher.Constraint("Vertical", 18),
    Sketcher.Constraint("Horizontal", 19),
    Sketcher.Constraint("Vertical", 20),
    Sketcher.Constraint("Horizontal", 21),
    Sketcher.Constraint("Vertical", 22),
    Sketcher.Constraint("Horizontal", 23),
    Sketcher.Constraint("Vertical", 24),
    Sketcher.Constraint("Horizontal", 25),
    Sketcher.Constraint("Vertical", 26),
    Sketcher.Constraint("Horizontal", 27),
    Sketcher.Constraint("Vertical", 28),
    Sketcher.Constraint("Horizontal", 29),
    Sketcher.Constraint("Vertical", 30),
    Sketcher.Constraint("Horizontal", 31),
    Sketcher.Constraint("Vertical", 32),
    Sketcher.Constraint("Horizontal", 33),
    Sketcher.Constraint("Vertical", 34),
    Sketcher.Constraint("Horizontal", 35),
    Sketcher.Constraint("Vertical", 36),
    Sketcher.Constraint("Horizontal", 37),
    Sketcher.Constraint("Vertical", 38),
    Sketcher.Constraint("Horizontal", 39),
    Sketcher.Constraint("Vertical", 40),
    Sketcher.Constraint("Horizontal", 41),
    Sketcher.Constraint("Vertical", 42),
    Sketcher.Constraint("Horizontal", 43),
    Sketcher.Constraint("Vertical", 44),
    Sketcher.Constraint("Horizontal", 45),
    Sketcher.Constraint("Vertical", 46),
    Sketcher.Constraint("Horizontal", 47),
    Sketcher.Constraint("Vertical", 48),
    Sketcher.Constraint("Horizontal", 49),
    Sketcher.Constraint("Vertical", 50),
    Sketcher.Constraint("Horizontal", 51),
    Sketcher.Constraint("Vertical", 52),
    Sketcher.Constraint("Horizontal", 53),
    Sketcher.Constraint("Vertical", 54),
    Sketcher.Constraint("Horizontal", 55),
    Sketcher.Constraint("Vertical", 56),
    Sketcher.Constraint("Horizontal", 57),
    Sketcher.Constraint("Vertical", 58),
    Sketcher.Constraint("Horizontal", 59),
    Sketcher.Constraint("Vertical", 60),
    Sketcher.Constraint("Horizontal", 61),
    Sketcher.Constraint("Vertical", 62),
    Sketcher.Constraint("Horizontal", 63),
    Sketcher.Constraint("Vertical", 64),
    Sketcher.Constraint("Horizontal", 65),
    Sketcher.Constraint("Vertical", 66),
    Sketcher.Constraint("Horizontal", 67),
    Sketcher.Constraint("Vertical", 68),
    Sketcher.Constraint("Horizontal", 69),
    Sketcher.Constraint("Vertical", 70),
    Sketcher.Constraint("Horizontal", 71),
    Sketcher.Constraint("Vertical", 72),
    Sketcher.Constraint("Horizontal", 73),
    Sketcher.Constraint("Vertical", 74),
    Sketcher.Constraint("Horizontal", 75),
    Sketcher.Constraint("Vertical", 76),
    Sketcher.Constraint("Horizontal", 77),
    Sketcher.Constraint("Vertical", 78),
    Sketcher.Constraint("Horizontal", 79),
    Sketcher.Constraint("Symmetric", 29, 2, 40, 2, -2),
    Sketcher.Constraint("Symmetric", 31, 2, 42, 2, -2),
    Sketcher.Constraint("Symmetric", 33, 2, 44, 2, -2),
    Sketcher.Constraint("Symmetric", 35, 2, 46, 2, -2),
    Sketcher.Constraint("Symmetric", 37, 2, 48, 2, -2),
    Sketcher.Constraint("Symmetric", 39, 2, 50, 2, -2),
    Sketcher.Constraint("Symmetric", 25, 2, 52, 2, -2),
    Sketcher.Constraint("Symmetric", 27, 2, 54, 2, -2),
    Sketcher.Constraint("Symmetric", 17, 2, 56, 2, -2),
    Sketcher.Constraint("Symmetric", 19, 2, 58, 2, -2),
    Sketcher.Constraint("Symmetric", 1, 2, 60, 2, -2),
    Sketcher.Constraint("Symmetric", 3, 2, 62, 2, -2),
    Sketcher.Constraint("Symmetric", 5, 2, 64, 2, -2),
    Sketcher.Constraint("Symmetric", 7, 2, 66, 2, -2),
    Sketcher.Constraint("Symmetric", 9, 2, 68, 2, -2),
    Sketcher.Constraint("Symmetric", 11, 2, 70, 2, -2),
    Sketcher.Constraint("Symmetric", 13, 2, 72, 2, -2),
    Sketcher.Constraint("Symmetric", 15, 2, 74, 2, -2),
    Sketcher.Constraint("Symmetric", 21, 2, 76, 2, -2),
    Sketcher.Constraint("Symmetric", 23, 2, 78, 2, -2),
    Sketcher.Constraint("Vertical", 3, 2, 4, 2),
    Sketcher.Constraint("Vertical", 2, 2, 5, 2),
    Sketcher.Constraint("Vertical", 7, 2, 8, 2),
    Sketcher.Constraint("Vertical", 6, 2, 9, 2),
    Sketcher.Constraint("Vertical", 11, 2, 12, 2),
    Sketcher.Constraint("Vertical", 10, 2, 13, 2),
    Sketcher.Constraint("Vertical", 15, 2, 16, 2),
    Sketcher.Constraint("Vertical", 14, 2, 17, 2),
    Sketcher.Constraint("Vertical", 19, 2, 20, 2),
    Sketcher.Constraint("Vertical", 18, 2, 21, 2),
    Sketcher.Constraint("Vertical", 23, 2, 24, 2),
    Sketcher.Constraint("Vertical", 22, 2, 25, 2),
    Sketcher.Constraint("Vertical", 27, 2, 28, 2),
    Sketcher.Constraint("Vertical", 26, 2, 29, 2),
    Sketcher.Constraint("Vertical", 31, 2, 32, 2),
    Sketcher.Constraint("Vertical", 30, 2, 33, 2),
    Sketcher.Constraint("Vertical", 35, 2, 36, 2),
    Sketcher.Constraint("Vertical", 34, 2, 37, 2),
    Sketcher.Constraint("Equal", 2, 4),
    Sketcher.Constraint("Equal", 6, 8),
    Sketcher.Constraint("Equal", 10, 12),
    Sketcher.Constraint("Equal", 14, 16),
    Sketcher.Constraint("Equal", 18, 20),
    Sketcher.Constraint("Equal", 22, 24),
    Sketcher.Constraint("Equal", 26, 28),
    Sketcher.Constraint("Equal", 30, 32),
    Sketcher.Constraint("Equal", 34, 36),
    Sketcher.Constraint("DistanceX", 1, 1, 1, 2, Q("15 mm")),
    Sketcher.Constraint("DistanceY", 0, 1, 0, 2, Q("10 mm")),
    Sketcher.Constraint("DistanceY", 0, 2, -1, 1, Q("209.75 mm")),
    Sketcher.Constraint("DistanceY", 4, 2, -1, 1, Q("164.75 mm")),
    Sketcher.Constraint("DistanceY", 8, 2, -1, 1, Q("119.75 mm")),
    Sketcher.Constraint("DistanceY", 12, 2, -1, 1, Q("74.75 mm")),
    Sketcher.Constraint("DistanceY", 16, 2, -1, 1, Q("29.75 mm")),
    Sketcher.Constraint("DistanceY", -1, 1, 20, 2, Q("15.25 mm")),
    Sketcher.Constraint("DistanceY", -1, 1, 24, 2, Q("60.25 mm")),
    Sketcher.Constraint("DistanceY", -1, 1, 28, 2, Q("195.25 mm")),
    Sketcher.Constraint("DistanceY", -1, 1, 32, 2, Q("150.25 mm")),
    Sketcher.Constraint("DistanceY", -1, 1, 36, 2, Q("105.25 mm")),
    Sketcher.Constraint("DistanceX", -1, 1, 0, 2, Q("77.497873 mm")),
])
pocket6 = body.newObject("PartDesign::Pocket", "Pocket005")
pocket6.Profile = sketch15
pocket6.Type = "ThroughAll"
pocket6.Midplane = True

doc.recompute()
